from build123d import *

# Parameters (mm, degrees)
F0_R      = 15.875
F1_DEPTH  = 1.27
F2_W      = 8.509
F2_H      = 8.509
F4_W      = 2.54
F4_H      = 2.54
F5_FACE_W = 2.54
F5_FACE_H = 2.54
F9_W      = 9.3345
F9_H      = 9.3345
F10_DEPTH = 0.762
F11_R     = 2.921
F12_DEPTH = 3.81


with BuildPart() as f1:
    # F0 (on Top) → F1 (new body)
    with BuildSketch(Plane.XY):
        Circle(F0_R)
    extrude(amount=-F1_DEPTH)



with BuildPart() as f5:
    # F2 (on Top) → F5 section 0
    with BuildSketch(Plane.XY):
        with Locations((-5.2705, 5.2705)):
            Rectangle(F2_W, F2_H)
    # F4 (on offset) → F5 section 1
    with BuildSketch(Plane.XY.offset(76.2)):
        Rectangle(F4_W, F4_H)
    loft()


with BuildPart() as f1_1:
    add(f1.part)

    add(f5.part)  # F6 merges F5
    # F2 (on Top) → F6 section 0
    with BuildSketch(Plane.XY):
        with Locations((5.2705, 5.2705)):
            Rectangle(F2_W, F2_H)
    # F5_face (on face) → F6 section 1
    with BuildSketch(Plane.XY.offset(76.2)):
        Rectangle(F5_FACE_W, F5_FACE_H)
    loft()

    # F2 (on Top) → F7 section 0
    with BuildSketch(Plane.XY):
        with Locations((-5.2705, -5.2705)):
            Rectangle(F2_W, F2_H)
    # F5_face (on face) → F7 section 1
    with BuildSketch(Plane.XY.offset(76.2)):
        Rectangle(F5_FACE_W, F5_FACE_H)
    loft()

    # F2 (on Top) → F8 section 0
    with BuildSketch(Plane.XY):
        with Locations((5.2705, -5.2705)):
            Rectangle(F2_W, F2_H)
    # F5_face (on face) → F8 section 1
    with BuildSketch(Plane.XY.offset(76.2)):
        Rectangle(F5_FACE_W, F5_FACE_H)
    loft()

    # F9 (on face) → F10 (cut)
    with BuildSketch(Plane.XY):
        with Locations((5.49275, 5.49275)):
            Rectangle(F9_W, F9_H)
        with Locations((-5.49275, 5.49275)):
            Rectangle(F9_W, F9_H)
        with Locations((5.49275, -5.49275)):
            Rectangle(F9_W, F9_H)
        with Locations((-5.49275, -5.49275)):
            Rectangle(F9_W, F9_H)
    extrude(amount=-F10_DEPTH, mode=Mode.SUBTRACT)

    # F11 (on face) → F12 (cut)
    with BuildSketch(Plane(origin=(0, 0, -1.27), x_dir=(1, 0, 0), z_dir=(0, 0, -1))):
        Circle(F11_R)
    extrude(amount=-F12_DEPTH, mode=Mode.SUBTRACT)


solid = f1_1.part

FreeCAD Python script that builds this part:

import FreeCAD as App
import Part
import Sketcher
from FreeCAD import Vector
Q = App.Units.Quantity

doc = App.newDocument("Part")
body = doc.addObject("PartDesign::Body", "Body")

# Sketch on XY plane
sketch1 = doc.addObject("Sketcher::SketchObject", "Sketch")
body.addObject(sketch1)
sketch1.AttachmentSupport = (doc.XY_Plane, [""])
sketch1.MapMode = "FlatFace"
sketch1.addGeometry(Part.Circle(Vector(0, 0, 0), Vector(0, 0, 1), 15.875), False)
sketch1.addConstraint([
    Sketcher.Constraint("Coincident", 0, 3, -1, 1),
    Sketcher.Constraint("Diameter", 0, Q("1.25 in")),
])
pad1 = doc.addObject("PartDesign::Pad", "Pad")
body.addObject(pad1)
pad1.Profile = sketch1
pad1.Length = Q("0.05 in")
pad1.Reversed = True
body2 = doc.addObject("PartDesign::Body", "Body001")

# Sketch on XY plane
sketch2 = doc.addObject("Sketcher::SketchObject", "Sketch001")
body2.addObject(sketch2)
sketch2.AttachmentSupport = (doc.getObject("XY_Plane001"), [""])
sketch2.MapMode = "FlatFace"
sketch2.addGeometry([
    Part.LineSegment(Vector(-9.525, 9.525, 0), Vector(-9.525, 1.016, 0)),
    Part.LineSegment(Vector(-9.525, 1.016, 0), Vector(-1.016, 1.016, 0)),
    Part.LineSegment(Vector(-1.016, 1.016, 0), Vector(-1.016, 9.525, 0)),
    Part.LineSegment(Vector(-1.016, 9.525, 0), Vector(-9.525, 9.525, 0)),
], False)
sketch2.addConstraint([
    Sketcher.Constraint("Coincident", 0, 2, 1, 1),
    Sketcher.Constraint("Coincident", 1, 2, 2, 1),
    Sketcher.Constraint("Coincident", 2, 2, 3, 1),
    Sketcher.Constraint("Coincident", 3, 2, 0, 1),
    Sketcher.Constraint("Vertical", 0),
    Sketcher.Constraint("Horizontal", 1),
    Sketcher.Constraint("Vertical", 2),
    Sketcher.Constraint("Horizontal", 3),
    Sketcher.Constraint("Equal", 3, 0),
    Sketcher.Constraint("DistanceX", 1, 1, 1, 2, Q("0.335 in")),
    Sketcher.Constraint("DistanceY", -1, 1, 0, 2, Q("0.04 in")),
    Sketcher.Constraint("DistanceX", 1, 2, -1, 1, Q("0.04 in")),
])

# Sketch on XY plane
sketch3 = doc.addObject("Sketcher::SketchObject", "Sketch002")
body2.addObject(sketch3)
sketch3.AttachmentSupport = (doc.getObject("XY_Plane001"), [""])
sketch3.MapMode = "FlatFace"
sketch3.AttachmentOffset = App.Placement(Vector(0, 0, 3 * 25.4), App.Rotation())
sketch3.addGeometry([
    Part.LineSegment(Vector(-1.27, 1.27, 0), Vector(-1.27, -1.27, 0)),
    Part.LineSegment(Vector(-1.27, -1.27, 0), Vector(1.27, -1.27, 0)),
    Part.LineSegment(Vector(1.27, -1.27, 0), Vector(1.27, 1.27, 0)),
    Part.LineSegment(Vector(1.27, 1.27, 0), Vector(-1.27, 1.27, 0)),
], False)
sketch3.addConstraint([
    Sketcher.Constraint("Coincident", 0, 2, 1, 1),
    Sketcher.Constraint("Coincident", 1, 2, 2, 1),
    Sketcher.Constraint("Coincident", 2, 2, 3, 1),
    Sketcher.Constraint("Coincident", 3, 2, 0, 1),
    Sketcher.Constraint("Vertical", 0),
    Sketcher.Constraint("Horizontal", 1),
    Sketcher.Constraint("Vertical", 2),
    Sketcher.Constraint("Horizontal", 3),
    Sketcher.Constraint("Symmetric", 0, 2, 2, 2, -1, 1),
    Sketcher.Constraint("Equal", 3, 0),
    Sketcher.Constraint("DistanceX", 1, 1, 1, 2, Q("0.1 in")),
])

additiveloft = doc.addObject("PartDesign::AdditiveLoft", "AdditiveLoft")
body2.addObject(additiveloft)
additiveloft.Profile = sketch2
additiveloft.Sections = [sketch3]
body.AllowCompound = True
doc.recompute()

boolean = doc.addObject("PartDesign::Boolean", "Boolean")
body.addObject(boolean)
boolean.Type = "Fuse"
boolean.addObjects([body2])

# Sketch on XY plane
sketch4 = doc.addObject("Sketcher::SketchObject", "Sketch003")
body.addObject(sketch4)
sketch4.AttachmentSupport = (doc.XY_Plane, [""])
sketch4.MapMode = "FlatFace"
sketch4.addGeometry([
    Part.LineSegment(Vector(1.016, 9.525, 0), Vector(1.016, 1.016, 0)),
    Part.LineSegment(Vector(1.016, 1.016, 0), Vector(9.525, 1.016, 0)),
    Part.LineSegment(Vector(9.525, 1.016, 0), Vector(9.525, 9.525, 0)),
    Part.LineSegment(Vector(9.525, 9.525, 0), Vector(1.016, 9.525, 0)),
], False)
sketch4.addConstraint([
    Sketcher.Constraint("Coincident", 0, 2, 1, 1),
    Sketcher.Constraint("Coincident", 1, 2, 2, 1),
    Sketcher.Constraint("Coincident", 2, 2, 3, 1),
    Sketcher.Constraint("Coincident", 3, 2, 0, 1),
    Sketcher.Constraint("Vertical", 0),
    Sketcher.Constraint("Horizontal", 1),
    Sketcher.Constraint("Vertical", 2),
    Sketcher.Constraint("Horizontal", 3),
    Sketcher.Constraint("Equal", 3, 0),
    Sketcher.Constraint("DistanceX", 1, 1, 1, 2, Q("0.335 in")),
    Sketcher.Constraint("DistanceX", -1, 1, 0, 2, Q("0.04 in")),
    Sketcher.Constraint("DistanceY", -1, 1, 0, 2, Q("0.04 in")),
])

# Sketch on XY plane
sketch5 = doc.addObject("Sketcher::SketchObject", "Sketch004")
body.addObject(sketch5)
sketch5.AttachmentSupport = (doc.XY_Plane, [""])
sketch5.MapMode = "FlatFace"
sketch5.AttachmentOffset = App.Placement(Vector(0, 0, 3 * 25.4), App.Rotation())
sketch5.addGeometry([
    Part.LineSegment(Vector(-1.27, 1.27, 0), Vector(-1.27, -1.27, 0)),
    Part.LineSegment(Vector(-1.27, -1.27, 0), Vector(1.27, -1.27, 0)),
    Part.LineSegment(Vector(1.27, -1.27, 0), Vector(1.27, 1.27, 0)),
    Part.LineSegment(Vector(1.27, 1.27, 0), Vector(-1.27, 1.27, 0)),
], False)
sketch5.addConstraint([
    Sketcher.Constraint("Coincident", 0, 2, 1, 1),
    Sketcher.Constraint("Coincident", 1, 2, 2, 1),
    Sketcher.Constraint("Coincident", 2, 2, 3, 1),
    Sketcher.Constraint("Coincident", 3, 2, 0, 1),
    Sketcher.Constraint("Vertical", 0),
    Sketcher.Constraint("Horizontal", 1),
    Sketcher.Constraint("Vertical", 2),
    Sketcher.Constraint("Horizontal", 3),
    Sketcher.Constraint("Symmetric", 0, 2, 2, 2, -1, 1),
    Sketcher.Constraint("Equal", 3, 0),
    Sketcher.Constraint("DistanceX", 1, 1, 1, 2, Q("0.1 in")),
])

additiveloft2 = doc.addObject("PartDesign::AdditiveLoft", "AdditiveLoft001")
body.addObject(additiveloft2)
additiveloft2.Profile = sketch4
additiveloft2.Sections = [sketch5]

# Sketch on XY plane
sketch6 = doc.addObject("Sketcher::SketchObject", "Sketch005")
body.addObject(sketch6)
sketch6.AttachmentSupport = (doc.XY_Plane, [""])
sketch6.MapMode = "FlatFace"
sketch6.addGeometry([
    Part.LineSegment(Vector(-9.525, -1.016, 0), Vector(-9.525, -9.525, 0)),
    Part.LineSegment(Vector(-9.525, -9.525, 0), Vector(-1.016, -9.525, 0)),
    Part.LineSegment(Vector(-1.016, -9.525, 0), Vector(-1.016, -1.016, 0)),
    Part.LineSegment(Vector(-1.016, -1.016, 0), Vector(-9.525, -1.016, 0)),
], False)
sketch6.addConstraint([
    Sketcher.Constraint("Coincident", 0, 2, 1, 1),
    Sketcher.Constraint("Coincident", 1, 2, 2, 1),
    Sketcher.Constraint("Coincident", 2, 2, 3, 1),
    Sketcher.Constraint("Coincident", 3, 2, 0, 1),
    Sketcher.Constraint("Vertical", 0),
    Sketcher.Constraint("Horizontal", 1),
    Sketcher.Constraint("Vertical", 2),
    Sketcher.Constraint("Horizontal", 3),
    Sketcher.Constraint("Equal", 3, 0),
    Sketcher.Constraint("DistanceX", 1, 1, 1, 2, Q("0.335 in")),
    Sketcher.Constraint("DistanceX", 1, 2, -1, 1, Q("0.04 in")),
    Sketcher.Constraint("DistanceY", 2, 2, -1, 1, Q("0.04 in")),
])

# Sketch on XY plane
sketch7 = doc.addObject("Sketcher::SketchObject", "Sketch006")
body.addObject(sketch7)
sketch7.AttachmentSupport = (doc.XY_Plane, [""])
sketch7.MapMode = "FlatFace"
sketch7.AttachmentOffset = App.Placement(Vector(0, 0, 3 * 25.4), App.Rotation())
sketch7.addGeometry([
    Part.LineSegment(Vector(-1.27, 1.27, 0), Vector(-1.27, -1.27, 0)),
    Part.LineSegment(Vector(-1.27, -1.27, 0), Vector(1.27, -1.27, 0)),
    Part.LineSegment(Vector(1.27, -1.27, 0), Vector(1.27, 1.27, 0)),
    Part.LineSegment(Vector(1.27, 1.27, 0), Vector(-1.27, 1.27, 0)),
], False)
sketch7.addConstraint([
    Sketcher.Constraint("Coincident", 0, 2, 1, 1),
    Sketcher.Constraint("Coincident", 1, 2, 2, 1),
    Sketcher.Constraint("Coincident", 2, 2, 3, 1),
    Sketcher.Constraint("Coincident", 3, 2, 0, 1),
    Sketcher.Constraint("Vertical", 0),
    Sketcher.Constraint("Horizontal", 1),
    Sketcher.Constraint("Vertical", 2),
    Sketcher.Constraint("Horizontal", 3),
    Sketcher.Constraint("Symmetric", 0, 2, 2, 2, -1, 1),
    Sketcher.Constraint("Equal", 3, 0),
    Sketcher.Constraint("DistanceX", 1, 1, 1, 2, Q("0.1 in")),
])

additiveloft3 = doc.addObject("PartDesign::AdditiveLoft", "AdditiveLoft002")
body.addObject(additiveloft3)
additiveloft3.Profile = sketch6
additiveloft3.Sections = [sketch7]

# Sketch on XY plane
sketch8 = doc.addObject("Sketcher::SketchObject", "Sketch007")
body.addObject(sketch8)
sketch8.AttachmentSupport = (doc.XY_Plane, [""])
sketch8.MapMode = "FlatFace"
sketch8.addGeometry([
    Part.LineSegment(Vector(1.016, -1.016, 0), Vector(1.016, -9.525, 0)),
    Part.LineSegment(Vector(1.016, -9.525, 0), Vector(9.525, -9.525, 0)),
    Part.LineSegment(Vector(9.525, -9.525, 0), Vector(9.525, -1.016, 0)),
    Part.LineSegment(Vector(9.525, -1.016, 0), Vector(1.016, -1.016, 0)),
], False)
sketch8.addConstraint([
    Sketcher.Constraint("Coincident", 0, 2, 1, 1),
    Sketcher.Constraint("Coincident", 1, 2, 2, 1),
    Sketcher.Constraint("Coincident", 2, 2, 3, 1),
    Sketcher.Constraint("Coincident", 3, 2, 0, 1),
    Sketcher.Constraint("Vertical", 0),
    Sketcher.Constraint("Horizontal", 1),
    Sketcher.Constraint("Vertical", 2),
    Sketcher.Constraint("Horizontal", 3),
    Sketcher.Constraint("Equal", 3, 0),
    Sketcher.Constraint("DistanceX", 1, 1, 1, 2, Q("0.335 in")),
    Sketcher.Constraint("DistanceX", -1, 1, 0, 2, Q("0.04 in")),
    Sketcher.Constraint("DistanceY", 2, 2, -1, 1, Q("0.04 in")),
])

# Sketch on XY plane
sketch9 = doc.addObject("Sketcher::SketchObject", "Sketch008")
body.addObject(sketch9)
sketch9.AttachmentSupport = (doc.XY_Plane, [""])
sketch9.MapMode = "FlatFace"
sketch9.AttachmentOffset = App.Placement(Vector(0, 0, 3 * 25.4), App.Rotation())
sketch9.addGeometry([
    Part.LineSegment(Vector(-1.27, 1.27, 0), Vector(-1.27, -1.27, 0)),
    Part.LineSegment(Vector(-1.27, -1.27, 0), Vector(1.27, -1.27, 0)),
    Part.LineSegment(Vector(1.27, -1.27, 0), Vector(1.27, 1.27, 0)),
    Part.LineSegment(Vector(1.27, 1.27, 0), Vector(-1.27, 1.27, 0)),
], False)
sketch9.addConstraint([
    Sketcher.Constraint("Coincident", 0, 2, 1, 1),
    Sketcher.Constraint("Coincident", 1, 2, 2, 1),
    Sketcher.Constraint("Coincident", 2, 2, 3, 1),
    Sketcher.Constraint("Coincident", 3, 2, 0, 1),
    Sketcher.Constraint("Vertical", 0),
    Sketcher.Constraint("Horizontal", 1),
    Sketcher.Constraint("Vertical", 2),
    Sketcher.Constraint("Horizontal", 3),
    Sketcher.Constraint("Symmetric", 0, 2, 2, 2, -1, 1),
    Sketcher.Constraint("Equal", 3, 0),
    Sketcher.Constraint("DistanceX", 1, 1, 1, 2, Q("0.1 in")),
])

additiveloft4 = doc.addObject("PartDesign::AdditiveLoft", "AdditiveLoft003")
body.addObject(additiveloft4)
additiveloft4.Profile = sketch8
additiveloft4.Sections = [sketch9]

# Sketch on XY plane
sketch10 = doc.addObject("Sketcher::SketchObject", "Sketch009")
body.addObject(sketch10)
sketch10.AttachmentSupport = (doc.XY_Plane, [""])
sketch10.MapMode = "FlatFace"
sketch10.addGeometry([
    Part.LineSegment(Vector(0.8255, 10.16, 0), Vector(0.8255, 0.8255, 0)),  # 0
    Part.LineSegment(Vector(0.8255, 0.8255, 0), Vector(10.16, 0.8255, 0)),  # 1
    Part.LineSegment(Vector(10.16, 0.8255, 0), Vector(10.16, 10.16, 0)),  # 2
    Part.LineSegment(Vector(10.16, 10.16, 0), Vector(0.8255, 10.16, 0)),  # 3
    Part.LineSegment(Vector(-10.16, 10.16, 0), Vector(-10.16, 0.8255, 0)),  # 4
    Part.LineSegment(Vector(-10.16, 0.8255, 0), Vector(-0.8255, 0.8255, 0)),  # 5
    Part.LineSegment(Vector(-0.8255, 0.8255, 0), Vector(-0.8255, 10.16, 0)),  # 6
    Part.LineSegment(Vector(-0.8255, 10.16, 0), Vector(-10.16, 10.16, 0)),  # 7
    Part.LineSegment(Vector(0.8255, -0.8255, 0), Vector(0.8255, -10.16, 0)),  # 8
    Part.LineSegment(Vector(0.8255, -10.16, 0), Vector(10.16, -10.16, 0)),  # 9
    Part.LineSegment(Vector(10.16, -10.16, 0), Vector(10.16, -0.8255, 0)),  # 10
    Part.LineSegment(Vector(10.16, -0.8255, 0), Vector(0.8255, -0.8255, 0)),  # 11
    Part.LineSegment(Vector(-10.16, -0.8255, 0), Vector(-10.16, -10.16, 0)),  # 12
    Part.LineSegment(Vector(-10.16, -10.16, 0), Vector(-0.8255, -10.16, 0)),  # 13
    Part.LineSegment(Vector(-0.8255, -10.16, 0), Vector(-0.8255, -0.8255, 0)),  # 14
    Part.LineSegment(Vector(-0.8255, -0.8255, 0), Vector(-10.16, -0.8255, 0)),  # 15
], False)
sketch10.addConstraint([
    Sketcher.Constraint("Coincident", 0, 2, 1, 1),
    Sketcher.Constraint("Coincident", 1, 2, 2, 1),
    Sketcher.Constraint("Coincident", 2, 2, 3, 1),
    Sketcher.Constraint("Coincident", 3, 2, 0, 1),
    Sketcher.Constraint("Coincident", 4, 2, 5, 1),
    Sketcher.Constraint("Coincident", 5, 2, 6, 1),
    Sketcher.Constraint("Coincident", 6, 2, 7, 1),
    Sketcher.Constraint("Coincident", 7, 2, 4, 1),
    Sketcher.Constraint("Coincident", 8, 2, 9, 1),
    Sketcher.Constraint("Coincident", 9, 2, 10, 1),
    Sketcher.Constraint("Coincident", 10, 2, 11, 1),
    Sketcher.Constraint("Coincident", 11, 2, 8, 1),
    Sketcher.Constraint("Coincident", 12, 2, 13, 1),
    Sketcher.Constraint("Coincident", 13, 2, 14, 1),
    Sketcher.Constraint("Coincident", 14, 2, 15, 1),
    Sketcher.Constraint("Coincident", 15, 2, 12, 1),
    Sketcher.Constraint("Vertical", 0),
    Sketcher.Constraint("Horizontal", 1),
    Sketcher.Constraint("Vertical", 2),
    Sketcher.Constraint("Horizontal", 3),
    Sketcher.Constraint("Vertical", 4),
    Sketcher.Constraint("Horizontal", 5),
    Sketcher.Constraint("Vertical", 6),
    Sketcher.Constraint("Horizontal", 7),
    Sketcher.Constraint("Vertical", 8),
    Sketcher.Constraint("Horizontal", 9),
    Sketcher.Constraint("Vertical", 10),
    Sketcher.Constraint("Horizontal", 11),
    Sketcher.Constraint("Vertical", 12),
    Sketcher.Constraint("Horizontal", 13),
    Sketcher.Constraint("Vertical", 14),
    Sketcher.Constraint("Horizontal", 15),
    Sketcher.Constraint("Symmetric", 6, 2, 8, 2, -1, 1),
    Sketcher.Constraint("Symmetric", 4, 2, 10, 2, -1, 1),
    Sketcher.Constraint("Symmetric", 2, 2, 12, 2, -1, 1),
    Sketcher.Constraint("Symmetric", 0, 2, 14, 2, -1, 1),
    Sketcher.Constraint("Symmetric", 1, 2, 4, 2, -2),
    Sketcher.Constraint("Symmetric", 3, 2, 6, 2, -2),
    Sketcher.Constraint("Equal", 15, 0),
    Sketcher.Constraint("DistanceX", -1, 1, 1, 2, Q("0.4 in")),
    Sketcher.Constraint("DistanceY", -1, 1, 2, 2, Q("0.4 in")),
    Sketcher.Constraint("DistanceX", 1, 1, 1, 2, Q("0.3675 in")),
])
pocket1 = doc.addObject("PartDesign::Pocket", "Pocket")
body.addObject(pocket1)
pocket1.Profile = sketch10
pocket1.Length = Q("0.03 in")

# Sketch on XY plane
sketch11 = doc.addObject("Sketcher::SketchObject", "Sketch010")
body.addObject(sketch11)
sketch11.AttachmentSupport = (doc.XY_Plane, [""])
sketch11.MapMode = "FlatFace"
sketch11.AttachmentOffset = App.Placement(Vector(0, 0, -0.05 * 25.4), App.Rotation())
sketch11.addGeometry(Part.Circle(Vector(0, 0, 0), Vector(0, 0, 1), 2.921), False)
sketch11.addConstraint([
    Sketcher.Constraint("Coincident", 0, 3, -1, 1),
    Sketcher.Constraint("Diameter", 0, Q("0.23 in")),
])
pocket2 = doc.addObject("PartDesign::Pocket", "Pocket001")
body.addObject(pocket2)
pocket2.Profile = sketch11
pocket2.Length = Q("0.15 in")
pocket2.Reversed = True

doc.recompute()
